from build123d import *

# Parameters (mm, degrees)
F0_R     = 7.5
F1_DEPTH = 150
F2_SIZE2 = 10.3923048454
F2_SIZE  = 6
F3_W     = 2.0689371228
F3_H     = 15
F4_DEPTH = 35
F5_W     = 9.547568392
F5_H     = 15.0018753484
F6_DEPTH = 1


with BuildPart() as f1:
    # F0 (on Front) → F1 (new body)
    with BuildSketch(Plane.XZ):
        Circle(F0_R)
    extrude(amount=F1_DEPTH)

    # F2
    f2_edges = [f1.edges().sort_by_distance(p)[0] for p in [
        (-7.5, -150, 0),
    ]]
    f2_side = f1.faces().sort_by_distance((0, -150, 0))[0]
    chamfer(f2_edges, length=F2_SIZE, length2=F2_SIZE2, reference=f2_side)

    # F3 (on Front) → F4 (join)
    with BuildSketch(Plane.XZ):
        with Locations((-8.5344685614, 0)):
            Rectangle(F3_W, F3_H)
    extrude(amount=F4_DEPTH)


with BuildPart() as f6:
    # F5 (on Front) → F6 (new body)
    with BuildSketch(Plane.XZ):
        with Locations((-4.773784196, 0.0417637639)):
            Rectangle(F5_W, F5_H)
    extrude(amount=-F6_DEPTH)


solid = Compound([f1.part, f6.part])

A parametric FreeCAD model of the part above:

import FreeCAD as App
import Part
import Sketcher
from FreeCAD import Vector


def edges_at(feature, points):
    """Names of the edges that pass closest to the given points."""
    edges = feature.Shape.Edges
    near = lambda p: min(range(len(edges)), key=lambda i: edges[i].distToShape(Part.Vertex(*p))[0])
    return sorted({f"Edge{near(p) + 1}" for p in points})


def add_polygon(sketch, points):
    """Adds a closed chain of lines whose ends are joined by coincident constraints."""
    first, n = sketch.GeometryCount, len(points)
    for a, b in zip(points, points[1:] + points[:1]):
        sketch.addGeometry(Part.LineSegment(App.Vector(*a, 0), App.Vector(*b, 0)), False)
    for i in range(n):
        sketch.addConstraint(Sketcher.Constraint("Coincident", first + i, 2, first + (i + 1) % n, 1))

doc = App.newDocument("Part")
body = doc.addObject("PartDesign::Body", "Body")
body.AllowCompound = True

# Sketch on XZ plane
sketch1 = body.newObject("Sketcher::SketchObject", "Sketch")
sketch1.AttachmentSupport = (doc.getObject("XZ_Plane"), [""])
sketch1.MapMode = "FlatFace"
sketch1.addGeometry(Part.Circle(Vector(0, 0, 0), Vector(0, 0, 1), 8), False)
sketch1.addConstraint(Sketcher.Constraint("Coincident", 0, 3, -1, 1))
sketch1.addConstraint(Sketcher.Constraint("Diameter", 0, 15.0))
pad1 = body.newObject("PartDesign::Pad", "Pad")
pad1.Profile = sketch1
pad1.Length = 150
doc.recompute()

chamfer = body.newObject("PartDesign::Chamfer", "Chamfer")
chamfer.Base = (pad1, edges_at(pad1, [(-7.5, -150, 0)]))
chamfer.ChamferType = "Two distances"
chamfer.Size = 6
chamfer.Size2 = 10.392305
chamfer.FlipDirection = True

# Sketch on XZ plane
sketch2 = body.newObject("Sketcher::SketchObject", "Sketch001")
sketch2.AttachmentSupport = (doc.getObject("XZ_Plane"), [""])
sketch2.MapMode = "FlatFace"
add_polygon(sketch2, [(-9.6, 7.5), (-9.6, -7.5), (-7.5, -7.5), (-7.5, 7.5)])  # lines 0-3
sketch2.addConstraint(Sketcher.Constraint("Vertical", 0))
sketch2.addConstraint(Sketcher.Constraint("Horizontal", 1))
sketch2.addConstraint(Sketcher.Constraint("Vertical", 2))
sketch2.addConstraint(Sketcher.Constraint("Horizontal", 3))
sketch2.addConstraint(Sketcher.Constraint("DistanceY", 0, 2, 0, 1, 15.0))
sketch2.addConstraint(Sketcher.Constraint("DistanceY", 0, 2, -1, 1, 7.5))
sketch2.addConstraint(Sketcher.Constraint("DistanceX", 1, 2, -1, 1, 7.5))
sketch2.addConstraint(Sketcher.Constraint("DistanceX", 1, 1, 1, 2, 2.068937))
pad2 = body.newObject("PartDesign::Pad", "Pad001")
pad2.Profile = sketch2
pad2.Length = 35
body2 = doc.addObject("PartDesign::Body", "Body001")

# Sketch on XZ plane
sketch3 = body2.newObject("Sketcher::SketchObject", "Sketch002")
sketch3.AttachmentSupport = (doc.getObject("XZ_Plane001"), [""])
sketch3.MapMode = "FlatFace"
add_polygon(sketch3, [(-10, 8), (-10, -7), (0, -7), (0, 8)])  # lines 0-3
sketch3.addConstraint(Sketcher.Constraint("Vertical", 0))
sketch3.addConstraint(Sketcher.Constraint("Horizontal", 1))
sketch3.addConstraint(Sketcher.Constraint("Vertical", 2))
sketch3.addConstraint(Sketcher.Constraint("Horizontal", 3))
sketch3.addConstraint(Sketcher.Constraint("PointOnObject", 1, 2, -2))
sketch3.addConstraint(Sketcher.Constraint("DistanceX", 1, 1, 1, 2, 9.547568))
sketch3.addConstraint(Sketcher.Constraint("DistanceY", -1, 1, 2, 2, 7.542701))
sketch3.addConstraint(Sketcher.Constraint("DistanceY", 0, 2, 0, 1, 15.001875))
pad3 = body2.newObject("PartDesign::Pad", "Pad002")
pad3.Profile = sketch3
pad3.Length = 1
pad3.Reversed = True

doc.recompute()
